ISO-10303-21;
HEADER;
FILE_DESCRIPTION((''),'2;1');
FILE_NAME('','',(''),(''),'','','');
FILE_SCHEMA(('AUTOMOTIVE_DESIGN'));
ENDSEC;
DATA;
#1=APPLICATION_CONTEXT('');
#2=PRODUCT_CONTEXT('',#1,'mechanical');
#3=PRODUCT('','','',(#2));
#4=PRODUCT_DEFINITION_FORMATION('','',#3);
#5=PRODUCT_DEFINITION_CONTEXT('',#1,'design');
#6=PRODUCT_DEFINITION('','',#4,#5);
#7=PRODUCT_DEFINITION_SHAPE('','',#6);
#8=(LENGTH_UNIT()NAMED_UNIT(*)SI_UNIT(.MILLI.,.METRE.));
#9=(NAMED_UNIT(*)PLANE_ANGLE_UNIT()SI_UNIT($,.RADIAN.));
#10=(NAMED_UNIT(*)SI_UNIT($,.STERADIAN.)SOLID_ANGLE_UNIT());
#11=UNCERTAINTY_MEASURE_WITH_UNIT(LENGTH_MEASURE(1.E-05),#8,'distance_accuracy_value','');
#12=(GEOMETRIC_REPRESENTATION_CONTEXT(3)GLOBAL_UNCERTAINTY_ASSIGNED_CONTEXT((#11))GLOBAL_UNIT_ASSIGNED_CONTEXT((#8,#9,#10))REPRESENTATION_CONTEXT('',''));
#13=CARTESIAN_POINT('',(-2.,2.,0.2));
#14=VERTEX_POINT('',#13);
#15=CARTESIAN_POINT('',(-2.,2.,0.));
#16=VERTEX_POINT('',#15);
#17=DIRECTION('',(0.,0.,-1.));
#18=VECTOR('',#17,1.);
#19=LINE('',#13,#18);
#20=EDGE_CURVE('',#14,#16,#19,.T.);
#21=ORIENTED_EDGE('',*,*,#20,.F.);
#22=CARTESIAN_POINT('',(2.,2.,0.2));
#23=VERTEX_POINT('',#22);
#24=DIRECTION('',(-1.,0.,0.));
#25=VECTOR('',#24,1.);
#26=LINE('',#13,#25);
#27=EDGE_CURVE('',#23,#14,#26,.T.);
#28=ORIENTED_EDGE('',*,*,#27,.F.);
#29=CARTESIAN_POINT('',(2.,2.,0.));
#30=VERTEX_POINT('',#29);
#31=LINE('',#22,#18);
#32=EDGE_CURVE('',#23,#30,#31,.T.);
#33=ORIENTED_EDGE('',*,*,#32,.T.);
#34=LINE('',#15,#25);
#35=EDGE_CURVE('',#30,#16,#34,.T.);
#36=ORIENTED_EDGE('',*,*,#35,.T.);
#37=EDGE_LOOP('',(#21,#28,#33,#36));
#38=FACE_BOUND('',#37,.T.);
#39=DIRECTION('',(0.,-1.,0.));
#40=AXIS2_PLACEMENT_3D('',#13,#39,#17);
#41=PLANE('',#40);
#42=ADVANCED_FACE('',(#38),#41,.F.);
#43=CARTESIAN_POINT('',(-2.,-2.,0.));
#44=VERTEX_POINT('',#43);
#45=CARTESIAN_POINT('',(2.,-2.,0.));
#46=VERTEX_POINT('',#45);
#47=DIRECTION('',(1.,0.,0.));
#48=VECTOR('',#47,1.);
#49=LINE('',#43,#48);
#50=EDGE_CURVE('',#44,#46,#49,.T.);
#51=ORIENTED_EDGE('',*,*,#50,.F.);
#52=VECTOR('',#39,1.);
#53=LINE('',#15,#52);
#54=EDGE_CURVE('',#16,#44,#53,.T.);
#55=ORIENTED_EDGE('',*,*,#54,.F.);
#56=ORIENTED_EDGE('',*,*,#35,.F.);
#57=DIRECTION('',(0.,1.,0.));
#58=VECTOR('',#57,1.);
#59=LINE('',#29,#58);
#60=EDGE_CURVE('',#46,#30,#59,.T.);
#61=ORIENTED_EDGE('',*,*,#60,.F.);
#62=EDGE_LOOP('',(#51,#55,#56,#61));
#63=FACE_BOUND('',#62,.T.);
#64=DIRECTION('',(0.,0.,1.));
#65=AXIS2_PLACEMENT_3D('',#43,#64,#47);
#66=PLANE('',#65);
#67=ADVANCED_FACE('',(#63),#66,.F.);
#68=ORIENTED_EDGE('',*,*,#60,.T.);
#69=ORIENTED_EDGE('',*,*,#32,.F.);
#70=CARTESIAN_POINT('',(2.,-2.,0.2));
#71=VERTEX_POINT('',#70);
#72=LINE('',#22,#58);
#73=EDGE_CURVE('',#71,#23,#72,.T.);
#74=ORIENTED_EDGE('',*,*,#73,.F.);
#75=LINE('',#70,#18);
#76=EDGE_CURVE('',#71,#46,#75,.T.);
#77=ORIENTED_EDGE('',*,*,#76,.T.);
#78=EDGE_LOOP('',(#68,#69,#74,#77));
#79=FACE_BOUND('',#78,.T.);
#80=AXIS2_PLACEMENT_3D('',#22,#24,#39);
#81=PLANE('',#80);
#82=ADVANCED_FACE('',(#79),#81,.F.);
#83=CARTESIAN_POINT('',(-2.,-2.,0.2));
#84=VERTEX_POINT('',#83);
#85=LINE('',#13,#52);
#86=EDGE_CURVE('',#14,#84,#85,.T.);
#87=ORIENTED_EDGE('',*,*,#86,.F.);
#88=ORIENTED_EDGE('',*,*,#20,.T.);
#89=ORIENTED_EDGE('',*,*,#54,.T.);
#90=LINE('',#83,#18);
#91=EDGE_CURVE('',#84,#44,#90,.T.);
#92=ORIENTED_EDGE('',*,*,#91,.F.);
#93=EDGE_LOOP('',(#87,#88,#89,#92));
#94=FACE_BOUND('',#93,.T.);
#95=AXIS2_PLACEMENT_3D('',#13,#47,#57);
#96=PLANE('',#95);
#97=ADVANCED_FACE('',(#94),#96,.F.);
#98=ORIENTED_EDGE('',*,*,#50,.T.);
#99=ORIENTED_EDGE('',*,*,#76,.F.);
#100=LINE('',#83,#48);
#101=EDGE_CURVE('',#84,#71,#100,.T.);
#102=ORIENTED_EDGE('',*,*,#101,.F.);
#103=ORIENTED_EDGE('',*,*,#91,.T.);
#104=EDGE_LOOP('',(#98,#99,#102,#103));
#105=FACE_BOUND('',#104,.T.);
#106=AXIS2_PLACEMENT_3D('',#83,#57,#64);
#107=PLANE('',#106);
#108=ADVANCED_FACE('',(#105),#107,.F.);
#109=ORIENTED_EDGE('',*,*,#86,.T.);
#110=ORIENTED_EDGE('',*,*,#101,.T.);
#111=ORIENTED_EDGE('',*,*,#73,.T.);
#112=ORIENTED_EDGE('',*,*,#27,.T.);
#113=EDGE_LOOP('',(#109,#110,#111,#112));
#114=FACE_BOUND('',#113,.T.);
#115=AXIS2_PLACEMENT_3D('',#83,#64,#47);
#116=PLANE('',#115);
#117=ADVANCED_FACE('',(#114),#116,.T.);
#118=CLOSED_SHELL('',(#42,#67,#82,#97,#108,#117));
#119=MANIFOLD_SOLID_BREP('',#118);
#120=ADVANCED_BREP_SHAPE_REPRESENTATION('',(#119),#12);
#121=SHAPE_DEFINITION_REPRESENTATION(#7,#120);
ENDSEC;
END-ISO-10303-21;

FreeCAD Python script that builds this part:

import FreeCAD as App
import Part
import Sketcher

V = App.Vector


def add_polygon(sketch, points):
    """Adds a closed chain of lines whose ends are joined by coincident constraints."""
    first, n = sketch.GeometryCount, len(points)
    for a, b in zip(points, points[1:] + points[:1]):
        sketch.addGeometry(Part.LineSegment(App.Vector(*a, 0), App.Vector(*b, 0)), False)
    for i in range(n):
        sketch.addConstraint(Sketcher.Constraint("Coincident", first + i, 2, first + (i + 1) % n, 1))

doc = App.newDocument("Part")
params = doc.addObject("Spreadsheet::Sheet", "Params")
for row, (alias, value) in enumerate([
    ("sketch1_width", "4 mm"),
    ("pad1_length", "0.2 mm"),
], start=1):
    params.set(f"A{row}", alias)
    params.set(f"B{row}", "=" + value)
    params.setAlias(f"B{row}", alias)

body = doc.addObject("PartDesign::Body", "Body")

sketch1 = doc.addObject("Sketcher::SketchObject", "Sketch")
body.addObject(sketch1)
sketch1.AttachmentSupport = (doc.XY_Plane, [""])
sketch1.MapMode = "FlatFace"
add_polygon(sketch1, [(-2, 2), (-2, -2), (2, -2), (2, 2)])
sketch1.addConstraint([
    Sketcher.Constraint("Vertical", 0),
    Sketcher.Constraint("Horizontal", 1),
    Sketcher.Constraint("Vertical", 2),
    Sketcher.Constraint("Horizontal", 3),
    Sketcher.Constraint("Symmetric", 0, 2, 2, 2, -1, 1),
    Sketcher.Constraint("Equal", 3, 0),
    Sketcher.Constraint("DistanceX", 1, 1, 1, 2, 4.0),
])
sketch1.setExpression("Constraints[10]", "Params.sketch1_width")
pad1 = doc.addObject("PartDesign::Pad", "Pad")
body.addObject(pad1)
pad1.Profile = sketch1
pad1.setExpression("Length", "Params.pad1_length")

doc.recompute()
